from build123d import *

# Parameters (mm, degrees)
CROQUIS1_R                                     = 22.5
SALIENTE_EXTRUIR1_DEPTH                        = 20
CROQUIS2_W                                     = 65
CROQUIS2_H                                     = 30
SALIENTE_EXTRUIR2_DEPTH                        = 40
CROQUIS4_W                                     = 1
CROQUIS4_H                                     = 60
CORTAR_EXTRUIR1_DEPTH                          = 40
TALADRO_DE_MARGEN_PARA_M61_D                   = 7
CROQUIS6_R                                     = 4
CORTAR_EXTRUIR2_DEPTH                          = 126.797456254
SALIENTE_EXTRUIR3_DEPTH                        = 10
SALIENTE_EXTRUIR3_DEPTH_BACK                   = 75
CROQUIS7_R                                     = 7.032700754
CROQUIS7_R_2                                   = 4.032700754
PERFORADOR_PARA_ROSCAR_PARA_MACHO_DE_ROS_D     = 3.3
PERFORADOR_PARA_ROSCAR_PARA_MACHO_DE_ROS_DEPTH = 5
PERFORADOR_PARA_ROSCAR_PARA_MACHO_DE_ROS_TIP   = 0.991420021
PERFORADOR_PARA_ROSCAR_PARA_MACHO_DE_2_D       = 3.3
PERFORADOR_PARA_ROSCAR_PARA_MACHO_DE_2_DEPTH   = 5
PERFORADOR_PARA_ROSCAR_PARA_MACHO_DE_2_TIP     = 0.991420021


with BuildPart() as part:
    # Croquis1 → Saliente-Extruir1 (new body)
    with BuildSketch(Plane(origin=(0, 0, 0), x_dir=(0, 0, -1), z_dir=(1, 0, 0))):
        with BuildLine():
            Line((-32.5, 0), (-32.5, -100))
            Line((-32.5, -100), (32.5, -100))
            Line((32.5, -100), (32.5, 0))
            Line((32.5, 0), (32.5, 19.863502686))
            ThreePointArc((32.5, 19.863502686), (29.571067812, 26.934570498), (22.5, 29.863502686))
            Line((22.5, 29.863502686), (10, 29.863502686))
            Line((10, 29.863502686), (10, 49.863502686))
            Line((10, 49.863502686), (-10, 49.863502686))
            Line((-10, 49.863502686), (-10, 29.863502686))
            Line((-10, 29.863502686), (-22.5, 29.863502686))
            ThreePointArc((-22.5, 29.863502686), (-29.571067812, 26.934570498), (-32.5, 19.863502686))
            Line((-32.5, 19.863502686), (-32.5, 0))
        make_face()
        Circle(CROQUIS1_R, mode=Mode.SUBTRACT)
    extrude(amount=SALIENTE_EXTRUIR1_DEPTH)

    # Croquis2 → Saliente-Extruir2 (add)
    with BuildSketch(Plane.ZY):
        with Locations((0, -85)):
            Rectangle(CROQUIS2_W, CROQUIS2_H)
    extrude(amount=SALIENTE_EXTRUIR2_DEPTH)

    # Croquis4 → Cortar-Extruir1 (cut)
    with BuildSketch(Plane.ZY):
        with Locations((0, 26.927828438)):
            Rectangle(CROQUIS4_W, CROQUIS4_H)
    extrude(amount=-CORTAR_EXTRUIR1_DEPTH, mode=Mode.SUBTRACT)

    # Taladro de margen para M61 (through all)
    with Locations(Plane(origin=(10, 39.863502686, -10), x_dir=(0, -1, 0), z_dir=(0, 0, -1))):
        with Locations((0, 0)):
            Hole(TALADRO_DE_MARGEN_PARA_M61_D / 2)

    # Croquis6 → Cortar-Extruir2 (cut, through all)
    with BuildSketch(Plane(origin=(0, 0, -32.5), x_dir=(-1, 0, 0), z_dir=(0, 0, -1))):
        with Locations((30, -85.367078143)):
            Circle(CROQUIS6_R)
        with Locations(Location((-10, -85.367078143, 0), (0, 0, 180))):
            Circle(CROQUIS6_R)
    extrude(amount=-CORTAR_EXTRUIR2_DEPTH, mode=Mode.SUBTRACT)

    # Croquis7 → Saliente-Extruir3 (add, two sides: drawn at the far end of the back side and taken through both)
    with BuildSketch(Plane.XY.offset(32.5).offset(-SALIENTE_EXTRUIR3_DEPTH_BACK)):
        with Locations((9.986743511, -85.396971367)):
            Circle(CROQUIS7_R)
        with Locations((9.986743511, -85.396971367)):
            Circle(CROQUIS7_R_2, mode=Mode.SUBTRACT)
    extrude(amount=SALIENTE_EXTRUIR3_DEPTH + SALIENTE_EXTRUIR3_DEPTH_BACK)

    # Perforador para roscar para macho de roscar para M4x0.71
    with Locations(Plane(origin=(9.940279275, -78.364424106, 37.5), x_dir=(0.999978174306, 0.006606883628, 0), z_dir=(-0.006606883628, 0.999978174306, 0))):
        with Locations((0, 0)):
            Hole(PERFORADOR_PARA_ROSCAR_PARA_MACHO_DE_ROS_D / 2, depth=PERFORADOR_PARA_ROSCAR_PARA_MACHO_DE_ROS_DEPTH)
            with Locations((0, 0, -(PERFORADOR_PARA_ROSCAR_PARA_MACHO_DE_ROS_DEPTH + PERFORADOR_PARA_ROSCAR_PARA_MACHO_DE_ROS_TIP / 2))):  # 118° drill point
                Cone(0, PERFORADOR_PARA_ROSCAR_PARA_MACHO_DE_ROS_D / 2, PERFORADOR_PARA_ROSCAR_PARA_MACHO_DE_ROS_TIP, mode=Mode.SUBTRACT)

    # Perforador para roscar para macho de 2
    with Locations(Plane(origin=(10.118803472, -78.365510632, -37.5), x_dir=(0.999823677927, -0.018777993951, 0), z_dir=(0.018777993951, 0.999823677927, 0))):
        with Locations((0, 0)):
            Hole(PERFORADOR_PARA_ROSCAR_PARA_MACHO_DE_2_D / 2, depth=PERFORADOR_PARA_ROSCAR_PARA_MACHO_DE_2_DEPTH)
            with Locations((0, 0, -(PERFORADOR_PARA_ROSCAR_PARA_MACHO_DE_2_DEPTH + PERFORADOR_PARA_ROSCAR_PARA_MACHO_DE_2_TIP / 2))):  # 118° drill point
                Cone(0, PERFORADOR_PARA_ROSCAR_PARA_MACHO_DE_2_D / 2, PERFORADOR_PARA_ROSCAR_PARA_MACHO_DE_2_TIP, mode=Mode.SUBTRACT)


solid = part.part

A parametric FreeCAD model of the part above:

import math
import FreeCAD as App
import Part
import Sketcher

doc = App.newDocument("Part")
body = doc.addObject("PartDesign::Body", "Body")

# Sketch on YZ plane
sketch1 = doc.addObject("Sketcher::SketchObject", "Sketch")
body.addObject(sketch1)
sketch1.AttachmentSupport = (doc.YZ_Plane, [""])
sketch1.MapMode = "FlatFace"
sketch1.addGeometry([
    Part.LineSegment(App.Vector(-100, 32, 0), App.Vector(-100, -32, 0)),  # 0
    Part.LineSegment(App.Vector(-100, -32, 0), App.Vector(20, -32, 0)),  # 1
    Part.ArcOfCircle(Part.Circle(App.Vector(20, -22, 0), App.Vector(0, 0, 1), 10), math.radians(-90), math.radians(0)),  # 2
    Part.LineSegment(App.Vector(30, -22, 0), App.Vector(30, -10, 0)),  # 3
    Part.LineSegment(App.Vector(30, -10, 0), App.Vector(50, -10, 0)),  # 4
    Part.LineSegment(App.Vector(50, -10, 0), App.Vector(50, 10, 0)),  # 5
    Part.LineSegment(App.Vector(50, 10, 0), App.Vector(30, 10, 0)),  # 6
    Part.LineSegment(App.Vector(30, 10, 0), App.Vector(30, 22, 0)),  # 7
    Part.ArcOfCircle(Part.Circle(App.Vector(20, 22, 0), App.Vector(0, 0, 1), 10), math.radians(0), math.radians(90)),  # 8
    Part.LineSegment(App.Vector(20, 32, 0), App.Vector(-100, 32, 0)),  # 9
    Part.Circle(App.Vector(0, 0, 0), App.Vector(0, 0, 1), 22),  # 10
], False)
sketch1.addConstraint([
    Sketcher.Constraint("Coincident", 0, 2, 1, 1),
    Sketcher.Constraint("Tangent", 1, 2, 2, 1),
    Sketcher.Constraint("Tangent", 2, 2, 3, 1),
    Sketcher.Constraint("Coincident", 3, 2, 4, 1),
    Sketcher.Constraint("Coincident", 4, 2, 5, 1),
    Sketcher.Constraint("Coincident", 5, 2, 6, 1),
    Sketcher.Constraint("Coincident", 6, 2, 7, 1),
    Sketcher.Constraint("Tangent", 7, 2, 8, 1),
    Sketcher.Constraint("Tangent", 8, 2, 9, 1),
    Sketcher.Constraint("Coincident", 9, 2, 0, 1),
    Sketcher.Constraint("Vertical", 0),
    Sketcher.Constraint("Horizontal", 1),
    Sketcher.Constraint("Vertical", 3),
    Sketcher.Constraint("Horizontal", 4),
    Sketcher.Constraint("Vertical", 5),
    Sketcher.Constraint("Horizontal", 6),
    Sketcher.Constraint("Vertical", 7),
    Sketcher.Constraint("Horizontal", 9),
    Sketcher.Constraint("Coincident", 10, 3, -1, 1),
    Sketcher.Constraint("Equal", 2, 8),
    Sketcher.Constraint("Symmetric", 2, 3, 8, 3, -1),
    Sketcher.Constraint("Equal", 6, 5),
    Sketcher.Constraint("Equal", 3, 7),
    Sketcher.Constraint("Diameter", 10, 45.0),
    Sketcher.Constraint("Radius", 2, 10.0),
    Sketcher.Constraint("DistanceX", 4, 1, 4, 2, 20.0),
    Sketcher.Constraint("DistanceY", 0, 2, 0, 1, 65.0),
    Sketcher.Constraint("DistanceX", 0, 2, -1, 1, 100.0),
    Sketcher.Constraint("DistanceX", 1, 1, 1, 2, 119.863503),
])
pad1 = doc.addObject("PartDesign::Pad", "Pad")
body.addObject(pad1)
pad1.Profile = sketch1
pad1.Length = 20

# Sketch on YZ plane
sketch2 = doc.addObject("Sketcher::SketchObject", "Sketch001")
body.addObject(sketch2)
sketch2.AttachmentSupport = (doc.YZ_Plane, [""])
sketch2.MapMode = "FlatFace"
sketch2.addGeometry([
    Part.LineSegment(App.Vector(-70, -32, 0), App.Vector(-100, -32, 0)),
    Part.LineSegment(App.Vector(-100, -32, 0), App.Vector(-100, 32, 0)),
    Part.LineSegment(App.Vector(-100, 32, 0), App.Vector(-70, 32, 0)),
    Part.LineSegment(App.Vector(-70, 32, 0), App.Vector(-70, -32, 0)),
], False)
sketch2.addConstraint([
    Sketcher.Constraint("Coincident", 0, 2, 1, 1),
    Sketcher.Constraint("Coincident", 1, 2, 2, 1),
    Sketcher.Constraint("Coincident", 2, 2, 3, 1),
    Sketcher.Constraint("Coincident", 3, 2, 0, 1),
    Sketcher.Constraint("Horizontal", 0),
    Sketcher.Constraint("Vertical", 1),
    Sketcher.Constraint("Horizontal", 2),
    Sketcher.Constraint("Vertical", 3),
    Sketcher.Constraint("DistanceX", 0, 2, 0, 1, 30.0),
    Sketcher.Constraint("DistanceY", 1, 1, 1, 2, 65.0),
    Sketcher.Constraint("DistanceX", 0, 2, -1, 1, 100.0),
    Sketcher.Constraint("DistanceY", 0, 2, -1, 1, 32.5),
])
pad2 = doc.addObject("PartDesign::Pad", "Pad001")
body.addObject(pad2)
pad2.Profile = sketch2
pad2.Length = 40
pad2.Reversed = True

# Sketch on YZ plane
sketch3 = doc.addObject("Sketcher::SketchObject", "Sketch002")
body.addObject(sketch3)
sketch3.AttachmentSupport = (doc.YZ_Plane, [""])
sketch3.MapMode = "FlatFace"
sketch3.addGeometry([
    Part.LineSegment(App.Vector(56.9, -0.5, 0), App.Vector(-3.1, -0.5, 0)),
    Part.LineSegment(App.Vector(-3.1, -0.5, 0), App.Vector(-3.1, 0.5, 0)),
    Part.LineSegment(App.Vector(-3.1, 0.5, 0), App.Vector(56.9, 0.5, 0)),
    Part.LineSegment(App.Vector(56.9, 0.5, 0), App.Vector(56.9, -0.5, 0)),
], False)
sketch3.addConstraint([
    Sketcher.Constraint("Coincident", 0, 2, 1, 1),
    Sketcher.Constraint("Coincident", 1, 2, 2, 1),
    Sketcher.Constraint("Coincident", 2, 2, 3, 1),
    Sketcher.Constraint("Coincident", 3, 2, 0, 1),
    Sketcher.Constraint("Horizontal", 0),
    Sketcher.Constraint("Vertical", 1),
    Sketcher.Constraint("Horizontal", 2),
    Sketcher.Constraint("Vertical", 3),
    Sketcher.Constraint("DistanceX", 0, 2, 0, 1, 60.0),
    Sketcher.Constraint("DistanceY", 1, 1, 1, 2, 1.0),
    Sketcher.Constraint("DistanceY", 0, 2, -1, 1, 0.5),
    Sketcher.Constraint("DistanceX", 0, 2, -1, 1, 3.072172),
])
pocket1 = doc.addObject("PartDesign::Pocket", "Pocket")
body.addObject(pocket1)
pocket1.Profile = sketch3
pocket1.Length = 40
pocket1.Reversed = True

# Sketch on XY plane
sketch4 = doc.addObject("Sketcher::SketchObject", "Sketch003")
body.addObject(sketch4)
sketch4.AttachmentSupport = (doc.XY_Plane, [""])
sketch4.MapMode = "FlatFace"
sketch4.AttachmentOffset = App.Placement(App.Vector(0, 0, -10), App.Rotation())
sketch4.addGeometry(Part.Circle(App.Vector(10, 39.9, 0), App.Vector(0, 0, 1), 3.5), False)
sketch4.addConstraint([
    Sketcher.Constraint("Diameter", 0, 7.0),
    Sketcher.Constraint("DistanceX", -1, 1, 0, 3, 10.0),
    Sketcher.Constraint("DistanceY", -1, 1, 0, 3, 39.863503),
])
doc.recompute()
hole = doc.addObject("PartDesign::Hole", "Hole")
body.addObject(hole)
hole.Profile = sketch4
hole.ThreadType = "None"
hole.Diameter = 7
hole.DepthType = "ThroughAll"
hole.Reversed = True

# Sketch on XY plane
sketch5 = doc.addObject("Sketcher::SketchObject", "Sketch004")
body.addObject(sketch5)
sketch5.AttachmentSupport = (doc.XY_Plane, [""])
sketch5.MapMode = "FlatFace"
sketch5.AttachmentOffset = App.Placement(App.Vector(0, 0, -32.5), App.Rotation())
sketch5.addGeometry([
    Part.Circle(App.Vector(-30, -85.4, 0), App.Vector(0, 0, 1), 4),
    Part.Circle(App.Vector(10, -85.4, 0), App.Vector(0, 0, 1), 4),
], False)
sketch5.addConstraint([
    Sketcher.Constraint("Equal", 0, 1),
    Sketcher.Constraint("Horizontal", 0, 3, 1, 3),
    Sketcher.Constraint("Diameter", 0, 8.0),
    Sketcher.Constraint("DistanceX", 0, 3, -1, 1, 30.0),
    Sketcher.Constraint("DistanceX", -1, 1, 1, 3, 10.0),
    Sketcher.Constraint("DistanceY", 0, 3, -1, 1, 85.367078),
])
pocket2 = doc.addObject("PartDesign::Pocket", "Pocket001")
body.addObject(pocket2)
pocket2.Profile = sketch5
pocket2.Type = "ThroughAll"
pocket2.Reversed = True

# Sketch on XY plane
sketch6 = doc.addObject("Sketcher::SketchObject", "Sketch005")
body.addObject(sketch6)
sketch6.AttachmentSupport = (doc.XY_Plane, [""])
sketch6.MapMode = "FlatFace"
sketch6.AttachmentOffset = App.Placement(App.Vector(0, 0, 32.5), App.Rotation())
sketch6.addGeometry([
    Part.Circle(App.Vector(10, -85.4, 0), App.Vector(0, 0, 1), 7),
    Part.Circle(App.Vector(10, -85.4, 0), App.Vector(0, 0, 1), 4),
], False)
sketch6.addConstraint([
    Sketcher.Constraint("Coincident", 1, 3, 0, 3),
    Sketcher.Constraint("Diameter", 0, 14.065402),
    Sketcher.Constraint("Diameter", 1, 8.065402),
    Sketcher.Constraint("DistanceY", 0, 3, -1, 1, 85.396971),
    Sketcher.Constraint("DistanceX", -1, 1, 0, 3, 9.986744),
])
pad3 = doc.addObject("PartDesign::Pad", "Pad002")
body.addObject(pad3)
pad3.Profile = sketch6
pad3.Type = "TwoLengths"
pad3.Length = 10
pad3.Length2 = 75

# Sketch on an angled plane
sketch7 = doc.addObject("Sketcher::SketchObject", "Sketch006")
body.addObject(sketch7)
sketch7.Placement = App.Placement(App.Vector(0.518167, -78.426676, 0), App.Rotation(App.Vector(0.999978174, 0.006606884, 0), App.Vector(0, 0, -0.999999999), App.Vector(-0.006606884, 0.999978174, 0), "ZXY"))
sketch7.addGeometry(Part.Circle(App.Vector(9.4, -37.5, 0), App.Vector(0, 0, 1), 1.6), False)
sketch7.addConstraint([
    Sketcher.Constraint("Diameter", 0, 3.3),
    Sketcher.Constraint("DistanceY", 0, 3, -1, 1, 37.5),
    Sketcher.Constraint("DistanceX", -1, 1, 0, 3, 9.422318),
])
doc.recompute()
hole2 = doc.addObject("PartDesign::Hole", "Hole001")
body.addObject(hole2)
hole2.Profile = sketch7
hole2.ThreadType = "None"
hole2.Diameter = 3.3
hole2.DepthType = "Dimension"
hole2.Depth = 5
hole2.DrillPoint = "Angled"
hole2.DrillPointAngle = 118

# Sketch on an angled plane
sketch8 = doc.addObject("Sketcher::SketchObject", "Sketch007")
body.addObject(sketch8)
sketch8.Placement = App.Placement(App.Vector(-1.46772, -78.147901, 0), App.Rotation(App.Vector(0.999823678, -0.018777994, 0), App.Vector(0, 0, -1), App.Vector(0.018777994, 0.999823678, 0), "ZXY"))
sketch8.addGeometry(Part.Circle(App.Vector(11.6, 37.5, 0), App.Vector(0, 0, 1), 1.6), False)
sketch8.addConstraint([
    Sketcher.Constraint("Diameter", 0, 3.3),
    Sketcher.Constraint("DistanceY", -1, 1, 0, 3, 37.5),
    Sketcher.Constraint("DistanceX", -1, 1, 0, 3, 11.588566),
])
doc.recompute()
hole3 = doc.addObject("PartDesign::Hole", "Hole002")
body.addObject(hole3)
hole3.Profile = sketch8
hole3.ThreadType = "None"
hole3.Diameter = 3.3
hole3.DepthType = "Dimension"
hole3.Depth = 5
hole3.DrillPoint = "Angled"
hole3.DrillPointAngle = 118

doc.recompute()
